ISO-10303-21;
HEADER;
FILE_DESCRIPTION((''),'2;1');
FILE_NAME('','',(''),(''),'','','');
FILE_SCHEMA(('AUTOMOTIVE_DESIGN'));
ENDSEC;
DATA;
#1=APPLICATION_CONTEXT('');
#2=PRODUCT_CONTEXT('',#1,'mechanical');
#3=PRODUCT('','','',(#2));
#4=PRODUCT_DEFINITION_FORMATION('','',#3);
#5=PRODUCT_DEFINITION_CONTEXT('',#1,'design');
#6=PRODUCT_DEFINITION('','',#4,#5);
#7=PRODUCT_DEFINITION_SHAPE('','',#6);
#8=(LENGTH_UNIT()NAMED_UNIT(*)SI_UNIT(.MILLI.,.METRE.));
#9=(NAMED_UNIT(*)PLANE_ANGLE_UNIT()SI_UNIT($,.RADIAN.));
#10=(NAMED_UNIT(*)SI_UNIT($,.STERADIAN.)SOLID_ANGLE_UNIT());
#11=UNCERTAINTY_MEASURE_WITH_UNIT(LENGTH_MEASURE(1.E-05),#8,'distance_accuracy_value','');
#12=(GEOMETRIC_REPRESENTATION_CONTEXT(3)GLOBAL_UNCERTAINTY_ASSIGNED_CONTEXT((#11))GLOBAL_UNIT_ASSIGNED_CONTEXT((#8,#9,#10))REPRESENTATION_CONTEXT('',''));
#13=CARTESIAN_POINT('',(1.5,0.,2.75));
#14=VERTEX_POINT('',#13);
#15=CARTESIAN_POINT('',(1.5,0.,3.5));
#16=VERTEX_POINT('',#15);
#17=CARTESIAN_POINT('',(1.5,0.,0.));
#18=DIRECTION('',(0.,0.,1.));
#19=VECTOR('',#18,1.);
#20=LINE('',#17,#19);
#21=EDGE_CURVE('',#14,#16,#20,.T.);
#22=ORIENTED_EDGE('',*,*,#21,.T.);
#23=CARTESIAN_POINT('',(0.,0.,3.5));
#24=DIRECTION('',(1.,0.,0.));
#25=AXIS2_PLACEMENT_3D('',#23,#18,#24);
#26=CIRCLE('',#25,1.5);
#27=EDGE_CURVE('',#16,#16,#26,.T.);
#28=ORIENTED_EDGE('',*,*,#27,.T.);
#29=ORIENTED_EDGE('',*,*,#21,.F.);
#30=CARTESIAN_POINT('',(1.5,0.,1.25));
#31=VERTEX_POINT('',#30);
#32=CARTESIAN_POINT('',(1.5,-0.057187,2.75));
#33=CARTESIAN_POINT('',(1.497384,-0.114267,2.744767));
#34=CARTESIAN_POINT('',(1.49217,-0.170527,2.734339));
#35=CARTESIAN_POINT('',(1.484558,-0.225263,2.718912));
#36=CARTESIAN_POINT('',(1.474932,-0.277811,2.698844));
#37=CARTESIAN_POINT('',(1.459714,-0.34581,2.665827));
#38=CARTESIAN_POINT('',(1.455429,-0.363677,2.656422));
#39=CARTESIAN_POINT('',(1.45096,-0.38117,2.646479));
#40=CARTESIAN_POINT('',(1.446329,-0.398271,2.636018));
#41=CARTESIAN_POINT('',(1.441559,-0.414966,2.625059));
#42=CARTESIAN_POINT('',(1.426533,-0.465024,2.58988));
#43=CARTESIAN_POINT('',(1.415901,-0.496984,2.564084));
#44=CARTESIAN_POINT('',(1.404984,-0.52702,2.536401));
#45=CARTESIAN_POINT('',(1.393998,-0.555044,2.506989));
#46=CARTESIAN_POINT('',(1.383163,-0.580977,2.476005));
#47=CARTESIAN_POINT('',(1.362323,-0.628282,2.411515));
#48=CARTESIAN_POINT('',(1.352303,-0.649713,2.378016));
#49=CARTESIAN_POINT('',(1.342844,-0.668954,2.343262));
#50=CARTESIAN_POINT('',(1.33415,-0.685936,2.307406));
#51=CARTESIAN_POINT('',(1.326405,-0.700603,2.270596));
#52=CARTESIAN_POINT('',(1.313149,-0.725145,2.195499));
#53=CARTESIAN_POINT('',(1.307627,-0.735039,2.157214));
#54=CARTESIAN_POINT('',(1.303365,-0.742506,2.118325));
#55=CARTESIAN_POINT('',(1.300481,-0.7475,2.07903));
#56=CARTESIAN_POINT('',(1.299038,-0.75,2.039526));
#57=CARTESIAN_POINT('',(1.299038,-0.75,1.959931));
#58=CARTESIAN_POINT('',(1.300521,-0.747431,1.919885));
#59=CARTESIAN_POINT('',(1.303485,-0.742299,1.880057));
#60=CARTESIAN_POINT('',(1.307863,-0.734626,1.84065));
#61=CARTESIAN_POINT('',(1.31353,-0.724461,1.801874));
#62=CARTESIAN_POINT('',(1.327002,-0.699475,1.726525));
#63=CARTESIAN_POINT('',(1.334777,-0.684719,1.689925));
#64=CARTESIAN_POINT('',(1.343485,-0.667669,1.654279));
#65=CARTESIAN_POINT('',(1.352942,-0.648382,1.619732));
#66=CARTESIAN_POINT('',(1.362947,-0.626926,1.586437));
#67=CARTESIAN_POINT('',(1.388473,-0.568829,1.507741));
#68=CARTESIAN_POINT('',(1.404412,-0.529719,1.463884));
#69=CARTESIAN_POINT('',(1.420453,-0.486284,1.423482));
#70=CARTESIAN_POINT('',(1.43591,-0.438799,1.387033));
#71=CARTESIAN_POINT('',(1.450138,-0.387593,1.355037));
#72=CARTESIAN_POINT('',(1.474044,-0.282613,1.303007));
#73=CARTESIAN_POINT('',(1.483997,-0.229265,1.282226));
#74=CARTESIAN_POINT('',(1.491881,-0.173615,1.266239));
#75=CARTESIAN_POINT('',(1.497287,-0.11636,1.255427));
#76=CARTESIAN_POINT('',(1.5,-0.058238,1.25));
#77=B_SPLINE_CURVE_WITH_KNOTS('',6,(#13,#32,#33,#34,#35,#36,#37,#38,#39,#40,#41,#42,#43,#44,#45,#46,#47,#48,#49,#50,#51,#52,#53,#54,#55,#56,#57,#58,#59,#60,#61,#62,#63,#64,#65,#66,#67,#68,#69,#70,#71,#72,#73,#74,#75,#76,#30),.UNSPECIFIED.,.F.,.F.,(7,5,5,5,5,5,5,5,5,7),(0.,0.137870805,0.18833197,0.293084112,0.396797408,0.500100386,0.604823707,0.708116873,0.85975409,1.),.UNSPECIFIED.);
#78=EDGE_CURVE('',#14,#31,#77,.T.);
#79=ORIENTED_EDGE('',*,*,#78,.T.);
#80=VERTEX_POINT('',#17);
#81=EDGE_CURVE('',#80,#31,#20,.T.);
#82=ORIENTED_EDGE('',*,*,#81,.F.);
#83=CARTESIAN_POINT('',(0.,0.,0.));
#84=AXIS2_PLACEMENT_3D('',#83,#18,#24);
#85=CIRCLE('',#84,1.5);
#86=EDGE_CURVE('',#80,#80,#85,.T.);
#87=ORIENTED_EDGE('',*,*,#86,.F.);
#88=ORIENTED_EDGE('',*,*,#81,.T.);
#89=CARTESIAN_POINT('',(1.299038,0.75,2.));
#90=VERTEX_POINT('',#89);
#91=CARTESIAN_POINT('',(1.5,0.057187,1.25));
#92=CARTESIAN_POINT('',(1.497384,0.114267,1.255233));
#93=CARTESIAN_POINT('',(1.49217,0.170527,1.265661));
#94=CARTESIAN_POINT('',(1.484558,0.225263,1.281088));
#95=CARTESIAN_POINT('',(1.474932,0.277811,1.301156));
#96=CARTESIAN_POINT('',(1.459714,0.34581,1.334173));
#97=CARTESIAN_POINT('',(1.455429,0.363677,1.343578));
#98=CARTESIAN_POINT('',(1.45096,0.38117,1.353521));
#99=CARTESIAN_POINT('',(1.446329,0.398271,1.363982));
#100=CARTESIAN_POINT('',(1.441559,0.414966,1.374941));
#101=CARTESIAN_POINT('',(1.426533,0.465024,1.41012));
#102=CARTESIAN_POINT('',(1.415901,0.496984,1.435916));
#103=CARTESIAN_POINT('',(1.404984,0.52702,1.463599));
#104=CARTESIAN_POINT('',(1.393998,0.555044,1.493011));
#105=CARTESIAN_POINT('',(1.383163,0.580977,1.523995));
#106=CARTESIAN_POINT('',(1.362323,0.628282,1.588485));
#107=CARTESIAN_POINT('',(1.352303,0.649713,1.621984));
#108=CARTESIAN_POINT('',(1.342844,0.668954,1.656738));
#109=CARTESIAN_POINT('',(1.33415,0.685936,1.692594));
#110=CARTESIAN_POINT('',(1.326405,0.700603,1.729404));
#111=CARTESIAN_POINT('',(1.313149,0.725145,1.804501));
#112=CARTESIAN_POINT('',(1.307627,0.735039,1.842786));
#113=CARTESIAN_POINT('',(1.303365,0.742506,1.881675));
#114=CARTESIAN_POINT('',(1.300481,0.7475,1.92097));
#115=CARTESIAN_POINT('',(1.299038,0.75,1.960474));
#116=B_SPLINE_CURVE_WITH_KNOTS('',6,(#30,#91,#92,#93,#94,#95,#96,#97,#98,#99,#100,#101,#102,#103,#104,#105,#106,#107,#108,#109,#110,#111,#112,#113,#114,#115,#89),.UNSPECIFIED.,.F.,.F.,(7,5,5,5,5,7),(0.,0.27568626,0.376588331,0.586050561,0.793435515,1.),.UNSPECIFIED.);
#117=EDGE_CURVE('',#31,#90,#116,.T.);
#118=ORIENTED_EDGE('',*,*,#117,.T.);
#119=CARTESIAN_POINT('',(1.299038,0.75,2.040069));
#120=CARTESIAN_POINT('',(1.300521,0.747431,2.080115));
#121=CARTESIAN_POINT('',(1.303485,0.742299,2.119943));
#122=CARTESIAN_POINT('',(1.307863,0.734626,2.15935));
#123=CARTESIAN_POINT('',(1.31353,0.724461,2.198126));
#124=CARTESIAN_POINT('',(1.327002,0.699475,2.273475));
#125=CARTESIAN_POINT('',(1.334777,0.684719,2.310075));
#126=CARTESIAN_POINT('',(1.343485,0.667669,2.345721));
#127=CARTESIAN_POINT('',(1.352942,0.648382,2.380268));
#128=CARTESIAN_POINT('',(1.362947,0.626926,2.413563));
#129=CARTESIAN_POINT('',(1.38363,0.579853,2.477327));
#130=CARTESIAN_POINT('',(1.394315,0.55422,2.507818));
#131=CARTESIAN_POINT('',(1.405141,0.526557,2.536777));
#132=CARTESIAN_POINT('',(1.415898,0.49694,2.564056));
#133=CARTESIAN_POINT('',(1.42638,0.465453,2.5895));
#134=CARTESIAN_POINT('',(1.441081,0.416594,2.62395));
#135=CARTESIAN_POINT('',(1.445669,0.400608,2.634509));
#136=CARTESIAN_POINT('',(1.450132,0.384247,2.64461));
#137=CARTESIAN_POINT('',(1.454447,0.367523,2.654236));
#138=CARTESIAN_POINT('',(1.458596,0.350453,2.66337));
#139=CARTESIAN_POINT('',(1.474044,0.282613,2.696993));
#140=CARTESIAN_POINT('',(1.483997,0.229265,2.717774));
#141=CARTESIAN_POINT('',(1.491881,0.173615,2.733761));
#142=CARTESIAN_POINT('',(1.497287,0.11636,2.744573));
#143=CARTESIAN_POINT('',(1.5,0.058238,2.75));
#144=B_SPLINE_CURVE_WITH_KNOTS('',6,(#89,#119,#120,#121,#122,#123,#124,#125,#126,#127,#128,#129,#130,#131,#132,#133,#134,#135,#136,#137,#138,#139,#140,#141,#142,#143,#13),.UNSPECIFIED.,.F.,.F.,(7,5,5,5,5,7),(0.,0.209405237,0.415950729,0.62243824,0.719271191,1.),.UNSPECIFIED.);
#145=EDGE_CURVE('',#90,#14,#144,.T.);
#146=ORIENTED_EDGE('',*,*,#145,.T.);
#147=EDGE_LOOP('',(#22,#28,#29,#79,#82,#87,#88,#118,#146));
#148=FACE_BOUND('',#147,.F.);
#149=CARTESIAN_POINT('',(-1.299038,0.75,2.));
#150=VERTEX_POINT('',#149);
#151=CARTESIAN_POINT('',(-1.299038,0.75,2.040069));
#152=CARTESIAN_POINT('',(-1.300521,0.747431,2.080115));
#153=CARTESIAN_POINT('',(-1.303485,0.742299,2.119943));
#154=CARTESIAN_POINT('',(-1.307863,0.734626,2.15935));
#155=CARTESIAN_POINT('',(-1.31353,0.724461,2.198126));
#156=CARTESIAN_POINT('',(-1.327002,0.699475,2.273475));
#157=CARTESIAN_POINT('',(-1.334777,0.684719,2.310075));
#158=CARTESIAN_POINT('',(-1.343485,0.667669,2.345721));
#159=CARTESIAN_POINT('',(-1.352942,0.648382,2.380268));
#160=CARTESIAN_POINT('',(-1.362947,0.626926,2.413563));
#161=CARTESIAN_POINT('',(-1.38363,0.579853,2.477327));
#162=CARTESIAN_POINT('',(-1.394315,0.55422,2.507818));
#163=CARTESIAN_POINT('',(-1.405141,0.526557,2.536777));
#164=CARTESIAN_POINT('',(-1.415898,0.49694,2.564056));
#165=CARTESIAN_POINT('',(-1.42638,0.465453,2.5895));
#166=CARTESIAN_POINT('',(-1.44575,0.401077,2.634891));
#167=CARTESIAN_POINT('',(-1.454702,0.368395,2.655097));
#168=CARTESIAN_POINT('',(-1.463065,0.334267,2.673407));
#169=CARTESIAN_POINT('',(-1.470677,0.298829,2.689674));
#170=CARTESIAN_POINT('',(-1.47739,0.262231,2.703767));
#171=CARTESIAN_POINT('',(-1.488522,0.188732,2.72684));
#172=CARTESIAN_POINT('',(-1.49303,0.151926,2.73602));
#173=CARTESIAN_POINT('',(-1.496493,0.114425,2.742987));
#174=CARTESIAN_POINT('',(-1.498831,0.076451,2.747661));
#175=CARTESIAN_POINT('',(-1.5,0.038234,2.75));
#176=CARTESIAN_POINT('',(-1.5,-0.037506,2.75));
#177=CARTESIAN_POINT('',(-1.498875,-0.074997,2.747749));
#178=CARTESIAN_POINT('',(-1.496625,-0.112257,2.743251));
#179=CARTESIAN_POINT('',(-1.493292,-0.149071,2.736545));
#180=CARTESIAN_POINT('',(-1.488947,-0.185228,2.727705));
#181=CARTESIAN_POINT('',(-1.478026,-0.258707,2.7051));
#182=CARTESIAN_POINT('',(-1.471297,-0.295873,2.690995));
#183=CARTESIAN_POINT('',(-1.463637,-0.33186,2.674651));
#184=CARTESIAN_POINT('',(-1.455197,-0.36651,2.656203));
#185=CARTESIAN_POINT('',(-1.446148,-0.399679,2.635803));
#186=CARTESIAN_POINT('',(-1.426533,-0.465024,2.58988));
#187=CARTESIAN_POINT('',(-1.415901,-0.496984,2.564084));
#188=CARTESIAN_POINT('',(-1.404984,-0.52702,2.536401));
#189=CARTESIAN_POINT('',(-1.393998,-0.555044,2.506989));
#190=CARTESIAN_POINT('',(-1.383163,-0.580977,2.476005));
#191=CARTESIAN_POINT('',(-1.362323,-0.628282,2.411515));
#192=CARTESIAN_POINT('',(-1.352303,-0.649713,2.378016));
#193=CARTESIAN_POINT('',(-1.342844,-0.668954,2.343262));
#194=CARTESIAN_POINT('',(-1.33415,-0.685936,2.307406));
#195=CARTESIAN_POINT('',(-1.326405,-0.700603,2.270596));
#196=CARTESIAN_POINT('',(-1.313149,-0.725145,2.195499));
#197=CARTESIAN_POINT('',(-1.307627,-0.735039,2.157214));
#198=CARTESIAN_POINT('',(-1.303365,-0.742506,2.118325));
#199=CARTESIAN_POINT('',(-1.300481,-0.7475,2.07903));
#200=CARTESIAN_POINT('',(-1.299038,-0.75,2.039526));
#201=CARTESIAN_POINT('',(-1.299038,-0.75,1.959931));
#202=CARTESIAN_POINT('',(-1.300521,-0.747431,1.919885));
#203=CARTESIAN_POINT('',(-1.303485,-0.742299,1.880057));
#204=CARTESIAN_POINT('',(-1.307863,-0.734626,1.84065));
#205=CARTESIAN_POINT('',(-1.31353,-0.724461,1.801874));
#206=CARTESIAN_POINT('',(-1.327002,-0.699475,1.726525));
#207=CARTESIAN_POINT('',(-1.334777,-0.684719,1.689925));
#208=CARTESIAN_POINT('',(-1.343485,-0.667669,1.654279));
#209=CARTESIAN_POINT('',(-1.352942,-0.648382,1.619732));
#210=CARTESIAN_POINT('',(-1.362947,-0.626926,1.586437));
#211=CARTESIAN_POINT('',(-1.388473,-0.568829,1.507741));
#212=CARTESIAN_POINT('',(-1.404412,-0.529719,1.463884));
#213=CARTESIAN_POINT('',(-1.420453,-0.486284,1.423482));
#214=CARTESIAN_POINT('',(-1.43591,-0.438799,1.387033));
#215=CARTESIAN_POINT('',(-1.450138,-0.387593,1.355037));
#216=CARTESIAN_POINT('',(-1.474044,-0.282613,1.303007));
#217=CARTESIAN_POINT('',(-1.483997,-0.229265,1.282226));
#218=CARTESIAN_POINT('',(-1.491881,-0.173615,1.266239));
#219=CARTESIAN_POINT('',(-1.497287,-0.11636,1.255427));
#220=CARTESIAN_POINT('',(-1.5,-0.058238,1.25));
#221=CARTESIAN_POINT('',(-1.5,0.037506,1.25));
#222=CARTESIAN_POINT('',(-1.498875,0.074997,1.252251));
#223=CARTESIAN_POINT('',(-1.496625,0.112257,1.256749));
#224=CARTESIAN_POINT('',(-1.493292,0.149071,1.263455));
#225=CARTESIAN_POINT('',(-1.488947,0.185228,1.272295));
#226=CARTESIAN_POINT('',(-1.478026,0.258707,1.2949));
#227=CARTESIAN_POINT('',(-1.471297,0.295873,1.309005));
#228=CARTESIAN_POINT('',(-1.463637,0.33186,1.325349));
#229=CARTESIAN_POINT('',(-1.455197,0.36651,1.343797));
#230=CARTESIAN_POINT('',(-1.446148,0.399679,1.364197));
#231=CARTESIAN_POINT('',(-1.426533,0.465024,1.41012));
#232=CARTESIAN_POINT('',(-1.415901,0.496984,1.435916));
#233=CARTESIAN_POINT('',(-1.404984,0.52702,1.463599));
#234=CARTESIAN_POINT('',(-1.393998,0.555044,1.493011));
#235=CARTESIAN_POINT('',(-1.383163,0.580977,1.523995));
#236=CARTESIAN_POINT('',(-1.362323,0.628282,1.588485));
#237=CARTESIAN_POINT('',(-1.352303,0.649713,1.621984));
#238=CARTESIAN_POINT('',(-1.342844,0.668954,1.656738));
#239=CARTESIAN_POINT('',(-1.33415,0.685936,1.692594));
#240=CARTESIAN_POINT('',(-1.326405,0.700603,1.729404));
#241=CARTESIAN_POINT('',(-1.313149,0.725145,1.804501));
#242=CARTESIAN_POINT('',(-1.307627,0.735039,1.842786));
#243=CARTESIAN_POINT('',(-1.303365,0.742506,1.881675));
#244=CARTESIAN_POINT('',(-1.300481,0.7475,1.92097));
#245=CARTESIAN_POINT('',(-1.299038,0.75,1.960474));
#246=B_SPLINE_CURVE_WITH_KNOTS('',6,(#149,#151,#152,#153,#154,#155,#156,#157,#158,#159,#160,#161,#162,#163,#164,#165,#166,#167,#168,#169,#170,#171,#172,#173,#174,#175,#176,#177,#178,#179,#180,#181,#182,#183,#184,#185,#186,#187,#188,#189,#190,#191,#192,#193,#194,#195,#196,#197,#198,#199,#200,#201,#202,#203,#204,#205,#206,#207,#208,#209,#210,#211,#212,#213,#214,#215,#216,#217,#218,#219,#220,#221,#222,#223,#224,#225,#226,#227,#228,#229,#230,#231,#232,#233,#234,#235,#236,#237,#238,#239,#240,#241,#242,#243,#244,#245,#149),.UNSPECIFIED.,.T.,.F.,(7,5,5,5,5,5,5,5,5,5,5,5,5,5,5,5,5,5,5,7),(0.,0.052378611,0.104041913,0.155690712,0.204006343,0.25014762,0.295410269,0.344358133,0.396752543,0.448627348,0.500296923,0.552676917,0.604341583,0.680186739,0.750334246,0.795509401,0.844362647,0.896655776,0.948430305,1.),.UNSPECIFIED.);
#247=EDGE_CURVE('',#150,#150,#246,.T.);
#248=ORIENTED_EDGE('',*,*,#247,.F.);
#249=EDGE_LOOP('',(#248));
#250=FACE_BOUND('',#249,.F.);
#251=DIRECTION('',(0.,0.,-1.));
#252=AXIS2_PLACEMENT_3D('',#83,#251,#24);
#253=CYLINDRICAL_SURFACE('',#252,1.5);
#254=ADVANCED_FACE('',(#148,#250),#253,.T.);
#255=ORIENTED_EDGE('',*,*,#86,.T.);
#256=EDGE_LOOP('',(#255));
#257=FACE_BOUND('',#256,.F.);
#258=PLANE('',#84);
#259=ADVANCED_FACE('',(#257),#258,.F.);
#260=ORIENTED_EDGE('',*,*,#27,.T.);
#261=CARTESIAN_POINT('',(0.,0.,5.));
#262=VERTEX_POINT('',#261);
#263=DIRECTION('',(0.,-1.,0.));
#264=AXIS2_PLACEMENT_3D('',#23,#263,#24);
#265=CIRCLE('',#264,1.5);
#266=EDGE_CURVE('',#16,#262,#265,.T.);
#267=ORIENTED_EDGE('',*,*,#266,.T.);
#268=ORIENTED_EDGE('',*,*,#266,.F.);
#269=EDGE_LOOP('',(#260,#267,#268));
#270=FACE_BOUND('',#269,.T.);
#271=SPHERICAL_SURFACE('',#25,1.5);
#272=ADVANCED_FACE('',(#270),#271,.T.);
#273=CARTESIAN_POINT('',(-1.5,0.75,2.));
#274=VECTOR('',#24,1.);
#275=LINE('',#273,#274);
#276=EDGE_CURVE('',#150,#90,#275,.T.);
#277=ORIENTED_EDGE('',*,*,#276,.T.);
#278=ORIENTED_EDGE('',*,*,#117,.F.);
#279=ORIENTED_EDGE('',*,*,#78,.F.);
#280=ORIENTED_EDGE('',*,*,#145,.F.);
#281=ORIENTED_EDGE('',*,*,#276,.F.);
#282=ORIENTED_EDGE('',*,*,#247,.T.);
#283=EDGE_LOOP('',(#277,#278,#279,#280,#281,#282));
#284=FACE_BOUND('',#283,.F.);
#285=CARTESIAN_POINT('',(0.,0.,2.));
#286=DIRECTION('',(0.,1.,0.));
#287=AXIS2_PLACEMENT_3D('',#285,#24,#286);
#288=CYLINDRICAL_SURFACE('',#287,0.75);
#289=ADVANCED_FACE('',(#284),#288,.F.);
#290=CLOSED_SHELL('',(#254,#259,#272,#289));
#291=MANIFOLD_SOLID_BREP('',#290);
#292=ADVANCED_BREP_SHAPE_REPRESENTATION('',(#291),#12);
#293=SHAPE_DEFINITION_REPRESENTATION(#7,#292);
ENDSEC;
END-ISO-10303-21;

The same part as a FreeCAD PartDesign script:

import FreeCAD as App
import Part
import Sketcher

V = App.Vector
Q = App.Units.Quantity


def edges_at(feature, points):
    """Names of the edges that pass closest to the given points."""
    edges = feature.Shape.Edges
    near = lambda p: min(range(len(edges)), key=lambda i: edges[i].distToShape(Part.Vertex(*p))[0])
    return sorted({f"Edge{near(p) + 1}" for p in points})

doc = App.newDocument("Part")
body = doc.addObject("PartDesign::Body", "Body")

sketch1 = body.newObject("Sketcher::SketchObject", "Sketch")
sketch1.AttachmentSupport = (doc.getObject("XY_Plane"), [""])
sketch1.MapMode = "FlatFace"
sketch1.addGeometry(Part.Circle(V(0, 0, 0), V(0, 0, 1), 1.5), False)
sketch1.addConstraint(Sketcher.Constraint("Coincident", 0, 3, -1, 1))
sketch1.addConstraint(Sketcher.Constraint("Diameter", 0, Q("3 mm")))
pad1 = body.newObject("PartDesign::Pad", "Pad")
pad1.Profile = sketch1
pad1.Length = 5
doc.recompute()

fillet = body.newObject("PartDesign::Fillet", "Fillet")
fillet.Base = (pad1, edges_at(pad1, [(-1.5, 0, 5)]))
fillet.Radius = 1.5

sketch2 = body.newObject("Sketcher::SketchObject", "Sketch001")
sketch2.AttachmentSupport = (doc.getObject("YZ_Plane"), [""])
sketch2.MapMode = "FlatFace"
sketch2.addGeometry(Part.Circle(V(0, 2, 0), V(0, 0, 1), 0.8), False)
sketch2.addConstraint(Sketcher.Constraint("PointOnObject", 0, 3, -2))
sketch2.addConstraint(Sketcher.Constraint("Diameter", 0, Q("1.5 mm")))
sketch2.addConstraint(Sketcher.Constraint("DistanceY", -1, 1, 0, 3, Q("2 mm")))
pocket1 = body.newObject("PartDesign::Pocket", "Pocket")
pocket1.Profile = sketch2
pocket1.Length = 3
pocket1.Midplane = True

doc.recompute()
